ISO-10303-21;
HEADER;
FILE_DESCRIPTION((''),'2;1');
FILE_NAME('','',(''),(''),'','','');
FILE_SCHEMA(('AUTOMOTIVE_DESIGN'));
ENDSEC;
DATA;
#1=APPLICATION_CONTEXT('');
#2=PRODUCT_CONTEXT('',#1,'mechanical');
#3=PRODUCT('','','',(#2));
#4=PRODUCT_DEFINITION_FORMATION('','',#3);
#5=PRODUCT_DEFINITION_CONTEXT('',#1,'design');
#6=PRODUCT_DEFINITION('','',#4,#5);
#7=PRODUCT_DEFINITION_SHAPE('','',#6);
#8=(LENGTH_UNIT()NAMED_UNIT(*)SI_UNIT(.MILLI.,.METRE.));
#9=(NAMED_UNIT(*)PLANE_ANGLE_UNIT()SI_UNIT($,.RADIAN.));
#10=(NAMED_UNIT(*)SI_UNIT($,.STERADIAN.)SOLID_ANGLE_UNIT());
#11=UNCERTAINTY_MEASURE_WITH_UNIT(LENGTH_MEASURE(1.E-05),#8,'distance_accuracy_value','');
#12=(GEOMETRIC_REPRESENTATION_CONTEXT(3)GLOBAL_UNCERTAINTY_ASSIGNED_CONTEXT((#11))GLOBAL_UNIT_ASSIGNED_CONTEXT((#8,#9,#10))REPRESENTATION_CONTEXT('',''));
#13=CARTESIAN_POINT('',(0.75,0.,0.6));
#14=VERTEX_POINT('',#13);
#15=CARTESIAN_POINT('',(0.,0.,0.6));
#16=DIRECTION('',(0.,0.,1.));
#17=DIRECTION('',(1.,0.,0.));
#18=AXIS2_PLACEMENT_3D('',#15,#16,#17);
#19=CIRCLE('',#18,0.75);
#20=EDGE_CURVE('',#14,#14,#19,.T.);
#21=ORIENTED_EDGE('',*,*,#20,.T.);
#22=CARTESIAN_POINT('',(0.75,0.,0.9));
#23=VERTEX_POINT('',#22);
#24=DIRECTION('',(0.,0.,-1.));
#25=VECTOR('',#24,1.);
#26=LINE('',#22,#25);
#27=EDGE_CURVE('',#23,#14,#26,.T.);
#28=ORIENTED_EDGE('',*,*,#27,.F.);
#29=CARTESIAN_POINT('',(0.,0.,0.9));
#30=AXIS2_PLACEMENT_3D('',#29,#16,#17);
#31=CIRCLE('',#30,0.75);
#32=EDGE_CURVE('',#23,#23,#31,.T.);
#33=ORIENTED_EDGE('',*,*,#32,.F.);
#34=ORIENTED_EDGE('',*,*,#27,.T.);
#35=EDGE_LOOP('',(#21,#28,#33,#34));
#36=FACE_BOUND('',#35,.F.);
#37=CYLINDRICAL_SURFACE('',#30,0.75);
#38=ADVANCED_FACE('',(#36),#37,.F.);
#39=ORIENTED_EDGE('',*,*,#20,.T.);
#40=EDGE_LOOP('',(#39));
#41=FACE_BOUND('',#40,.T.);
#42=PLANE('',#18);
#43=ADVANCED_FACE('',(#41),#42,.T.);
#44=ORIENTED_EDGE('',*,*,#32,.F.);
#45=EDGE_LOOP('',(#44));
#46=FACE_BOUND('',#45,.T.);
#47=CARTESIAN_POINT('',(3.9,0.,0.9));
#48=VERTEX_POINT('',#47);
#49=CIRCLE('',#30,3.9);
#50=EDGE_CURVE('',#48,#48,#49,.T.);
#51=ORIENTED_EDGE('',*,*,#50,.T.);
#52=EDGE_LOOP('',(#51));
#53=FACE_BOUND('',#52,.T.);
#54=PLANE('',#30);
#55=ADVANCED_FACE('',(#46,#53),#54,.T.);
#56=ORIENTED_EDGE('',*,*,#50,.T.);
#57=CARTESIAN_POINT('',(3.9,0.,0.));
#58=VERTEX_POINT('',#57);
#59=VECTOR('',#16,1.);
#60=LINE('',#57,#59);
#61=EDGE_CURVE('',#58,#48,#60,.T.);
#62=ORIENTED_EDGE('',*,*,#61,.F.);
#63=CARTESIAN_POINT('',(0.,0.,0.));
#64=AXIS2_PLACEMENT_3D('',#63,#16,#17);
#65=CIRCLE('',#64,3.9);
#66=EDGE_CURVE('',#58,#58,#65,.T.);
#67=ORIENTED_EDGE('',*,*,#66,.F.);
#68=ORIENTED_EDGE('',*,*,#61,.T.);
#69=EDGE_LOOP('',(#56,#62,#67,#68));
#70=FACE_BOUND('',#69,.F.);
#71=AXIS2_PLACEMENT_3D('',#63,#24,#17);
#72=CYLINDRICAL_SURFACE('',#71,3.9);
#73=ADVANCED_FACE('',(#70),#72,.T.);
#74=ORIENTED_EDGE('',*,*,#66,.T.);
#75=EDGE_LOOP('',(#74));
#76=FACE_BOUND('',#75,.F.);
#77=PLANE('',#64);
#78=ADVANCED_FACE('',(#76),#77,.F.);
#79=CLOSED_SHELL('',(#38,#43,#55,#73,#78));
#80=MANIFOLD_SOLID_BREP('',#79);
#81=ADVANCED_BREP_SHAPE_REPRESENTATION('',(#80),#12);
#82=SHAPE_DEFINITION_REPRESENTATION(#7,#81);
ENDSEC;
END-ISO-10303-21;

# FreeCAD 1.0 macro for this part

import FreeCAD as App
import Part
import Sketcher
from FreeCAD import Vector

doc = App.newDocument("Part")
body = doc.addObject("PartDesign::Body", "Body")

sketch1 = doc.addObject("Sketcher::SketchObject", "Sketch")
body.addObject(sketch1)
sketch1.AttachmentSupport = (doc.XY_Plane, [""])
sketch1.MapMode = "FlatFace"
sketch1.addGeometry(Part.Circle(Vector(0, 0, 0), Vector(0, 0, 1), 3.9), False)
sketch1.addConstraint([
    Sketcher.Constraint("Coincident", 0, 3, -1, 1),
    Sketcher.Constraint("Diameter", 0, 7.8),
])
pad1 = doc.addObject("PartDesign::Pad", "Pad")
body.addObject(pad1)
pad1.Profile = sketch1
pad1.Length = 0.9

sketch2 = doc.addObject("Sketcher::SketchObject", "Sketch001")
body.addObject(sketch2)
sketch2.AttachmentSupport = (doc.XY_Plane, [""])
sketch2.MapMode = "FlatFace"
sketch2.AttachmentOffset = App.Placement(Vector(0, 0, 0.9), App.Rotation())
sketch2.addGeometry(Part.Circle(Vector(0, 0, 0), Vector(0, 0, 1), 0.8), False)
sketch2.addConstraint([
    Sketcher.Constraint("Coincident", 0, 3, -1, 1),
    Sketcher.Constraint("Diameter", 0, 1.5),
])
pocket1 = doc.addObject("PartDesign::Pocket", "Pocket")
body.addObject(pocket1)
pocket1.Profile = sketch2
pocket1.Length = 0.3

doc.recompute()
